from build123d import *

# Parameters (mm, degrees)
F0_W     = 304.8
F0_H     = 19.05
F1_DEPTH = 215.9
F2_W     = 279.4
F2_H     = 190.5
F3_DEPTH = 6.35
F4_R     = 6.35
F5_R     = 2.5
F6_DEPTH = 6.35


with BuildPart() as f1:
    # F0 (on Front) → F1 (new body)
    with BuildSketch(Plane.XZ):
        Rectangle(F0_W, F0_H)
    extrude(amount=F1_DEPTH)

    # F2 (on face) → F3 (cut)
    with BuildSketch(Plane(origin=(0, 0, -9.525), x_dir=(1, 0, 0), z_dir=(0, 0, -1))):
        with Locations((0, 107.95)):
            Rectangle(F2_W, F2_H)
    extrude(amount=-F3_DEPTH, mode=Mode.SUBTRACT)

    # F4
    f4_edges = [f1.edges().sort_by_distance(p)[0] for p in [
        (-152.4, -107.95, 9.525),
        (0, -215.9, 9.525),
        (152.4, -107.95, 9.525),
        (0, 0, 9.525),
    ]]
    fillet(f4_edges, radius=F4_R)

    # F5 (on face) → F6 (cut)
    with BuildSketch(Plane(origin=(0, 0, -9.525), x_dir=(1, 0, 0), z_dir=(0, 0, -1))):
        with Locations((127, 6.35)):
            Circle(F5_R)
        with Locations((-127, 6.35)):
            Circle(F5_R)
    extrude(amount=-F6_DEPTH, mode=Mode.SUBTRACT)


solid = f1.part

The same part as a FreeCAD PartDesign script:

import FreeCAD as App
import Part
import Sketcher
Q = App.Units.Quantity


def edges_at(feature, points):
    """Names of the edges that pass closest to the given points."""
    edges = feature.Shape.Edges
    near = lambda p: min(range(len(edges)), key=lambda i: edges[i].distToShape(Part.Vertex(*p))[0])
    return sorted({f"Edge{near(p) + 1}" for p in points})

doc = App.newDocument("Part")
params = doc.addObject("Spreadsheet::Sheet", "Params")
for row, (alias, value) in enumerate([
    ("sketch1_width", "12 in"),
    ("sketch1_height", "0.75 in"),
    ("pad1_length", "8.5 in"),
    ("sketch2_width", "11 in"),
    ("sketch2_height", "7.5 in"),
    ("pocket1_length", "0.25 in"),
    ("fillet_radius", "0.25 in"),
    ("pocket2_length", "0.25 in"),
], start=1):
    params.set(f"A{row}", alias)
    params.set(f"B{row}", "=" + value)
    params.setAlias(f"B{row}", alias)

body = doc.addObject("PartDesign::Body", "Body")

# Sketch on XZ plane
sketch1 = doc.addObject("Sketcher::SketchObject", "Sketch")
body.addObject(sketch1)
sketch1.AttachmentSupport = (doc.XZ_Plane, [""])
sketch1.MapMode = "FlatFace"
sketch1.addGeometry([
    Part.LineSegment(App.Vector(-152, 10, 0), App.Vector(-152, -10, 0)),
    Part.LineSegment(App.Vector(-152, -10, 0), App.Vector(152, -10, 0)),
    Part.LineSegment(App.Vector(152, -10, 0), App.Vector(152, 10, 0)),
    Part.LineSegment(App.Vector(152, 10, 0), App.Vector(-152, 10, 0)),
], False)
sketch1.addConstraint([
    Sketcher.Constraint("Coincident", 0, 2, 1, 1),
    Sketcher.Constraint("Coincident", 1, 2, 2, 1),
    Sketcher.Constraint("Coincident", 2, 2, 3, 1),
    Sketcher.Constraint("Coincident", 3, 2, 0, 1),
    Sketcher.Constraint("Vertical", 0),
    Sketcher.Constraint("Horizontal", 1),
    Sketcher.Constraint("Vertical", 2),
    Sketcher.Constraint("Horizontal", 3),
    Sketcher.Constraint("Symmetric", 0, 2, 2, 2, -1, 1),
    Sketcher.Constraint("DistanceX", 1, 1, 1, 2, Q("12 in")),
    Sketcher.Constraint("DistanceY", 0, 2, 0, 1, Q("0.75 in")),
])
sketch1.setExpression("Constraints[9]", "Params.sketch1_width")
sketch1.setExpression("Constraints[10]", "Params.sketch1_height")
pad1 = doc.addObject("PartDesign::Pad", "Pad")
body.addObject(pad1)
pad1.Profile = sketch1
pad1.setExpression("Length", "Params.pad1_length")

# Sketch on XY plane
sketch2 = doc.addObject("Sketcher::SketchObject", "Sketch001")
body.addObject(sketch2)
sketch2.AttachmentSupport = (doc.XY_Plane, [""])
sketch2.MapMode = "FlatFace"
sketch2.AttachmentOffset = App.Placement(App.Vector(0, 0, -0.375 * 25.4), App.Rotation())
sketch2.addGeometry([
    Part.LineSegment(App.Vector(-140, -203, 0), App.Vector(-140, -13, 0)),
    Part.LineSegment(App.Vector(-140, -13, 0), App.Vector(140, -13, 0)),
    Part.LineSegment(App.Vector(140, -13, 0), App.Vector(140, -203, 0)),
    Part.LineSegment(App.Vector(140, -203, 0), App.Vector(-140, -203, 0)),
], False)
sketch2.addConstraint([
    Sketcher.Constraint("Coincident", 0, 2, 1, 1),
    Sketcher.Constraint("Coincident", 1, 2, 2, 1),
    Sketcher.Constraint("Coincident", 2, 2, 3, 1),
    Sketcher.Constraint("Coincident", 3, 2, 0, 1),
    Sketcher.Constraint("Vertical", 0),
    Sketcher.Constraint("Horizontal", 1),
    Sketcher.Constraint("Vertical", 2),
    Sketcher.Constraint("Horizontal", 3),
    Sketcher.Constraint("DistanceX", 1, 1, 1, 2, Q("11 in")),
    Sketcher.Constraint("DistanceY", 0, 1, 0, 2, Q("7.5 in")),
    Sketcher.Constraint("DistanceY", 2, 2, -1, 1, Q("8 in")),
    Sketcher.Constraint("DistanceX", 0, 2, -1, 1, Q("5.5 in")),
])
sketch2.setExpression("Constraints[8]", "Params.sketch2_width")
sketch2.setExpression("Constraints[9]", "Params.sketch2_height")
pocket1 = doc.addObject("PartDesign::Pocket", "Pocket")
body.addObject(pocket1)
pocket1.Profile = sketch2
pocket1.setExpression("Length", "Params.pocket1_length")
pocket1.Reversed = True
doc.recompute()

fillet = doc.addObject("PartDesign::Fillet", "Fillet")
body.addObject(fillet)
fillet.Base = (pocket1, edges_at(pocket1, [
    (-152.4, -107.95, 9.525),
    (0, -215.9, 9.525),
    (152.4, -107.95, 9.525),
    (0, 0, 9.525),
]))
fillet.setExpression("Radius", "Params.fillet_radius")

# Sketch on XY plane
sketch3 = doc.addObject("Sketcher::SketchObject", "Sketch002")
body.addObject(sketch3)
sketch3.AttachmentSupport = (doc.XY_Plane, [""])
sketch3.MapMode = "FlatFace"
sketch3.AttachmentOffset = App.Placement(App.Vector(0, 0, -0.375 * 25.4), App.Rotation())
sketch3.addGeometry([
    Part.Circle(App.Vector(127, -6.3, 0), App.Vector(0, 0, 1), 2.5),
    Part.Circle(App.Vector(-127, -6.3, 0), App.Vector(0, 0, 1), 2.5),
], False)
sketch3.addConstraint([
    Sketcher.Constraint("Equal", 0, 1),
    Sketcher.Constraint("Symmetric", 0, 3, 1, 3, -2),
    Sketcher.Constraint("DistanceX", -1, 1, 0, 3, Q("5 in")),
    Sketcher.Constraint("Diameter", 0, 5.0),
    Sketcher.Constraint("DistanceY", 0, 3, -1, 1, Q("0.25 in")),
])
pocket2 = doc.addObject("PartDesign::Pocket", "Pocket001")
body.addObject(pocket2)
pocket2.Profile = sketch3
pocket2.setExpression("Length", "Params.pocket2_length")
pocket2.Reversed = True

doc.recompute()
